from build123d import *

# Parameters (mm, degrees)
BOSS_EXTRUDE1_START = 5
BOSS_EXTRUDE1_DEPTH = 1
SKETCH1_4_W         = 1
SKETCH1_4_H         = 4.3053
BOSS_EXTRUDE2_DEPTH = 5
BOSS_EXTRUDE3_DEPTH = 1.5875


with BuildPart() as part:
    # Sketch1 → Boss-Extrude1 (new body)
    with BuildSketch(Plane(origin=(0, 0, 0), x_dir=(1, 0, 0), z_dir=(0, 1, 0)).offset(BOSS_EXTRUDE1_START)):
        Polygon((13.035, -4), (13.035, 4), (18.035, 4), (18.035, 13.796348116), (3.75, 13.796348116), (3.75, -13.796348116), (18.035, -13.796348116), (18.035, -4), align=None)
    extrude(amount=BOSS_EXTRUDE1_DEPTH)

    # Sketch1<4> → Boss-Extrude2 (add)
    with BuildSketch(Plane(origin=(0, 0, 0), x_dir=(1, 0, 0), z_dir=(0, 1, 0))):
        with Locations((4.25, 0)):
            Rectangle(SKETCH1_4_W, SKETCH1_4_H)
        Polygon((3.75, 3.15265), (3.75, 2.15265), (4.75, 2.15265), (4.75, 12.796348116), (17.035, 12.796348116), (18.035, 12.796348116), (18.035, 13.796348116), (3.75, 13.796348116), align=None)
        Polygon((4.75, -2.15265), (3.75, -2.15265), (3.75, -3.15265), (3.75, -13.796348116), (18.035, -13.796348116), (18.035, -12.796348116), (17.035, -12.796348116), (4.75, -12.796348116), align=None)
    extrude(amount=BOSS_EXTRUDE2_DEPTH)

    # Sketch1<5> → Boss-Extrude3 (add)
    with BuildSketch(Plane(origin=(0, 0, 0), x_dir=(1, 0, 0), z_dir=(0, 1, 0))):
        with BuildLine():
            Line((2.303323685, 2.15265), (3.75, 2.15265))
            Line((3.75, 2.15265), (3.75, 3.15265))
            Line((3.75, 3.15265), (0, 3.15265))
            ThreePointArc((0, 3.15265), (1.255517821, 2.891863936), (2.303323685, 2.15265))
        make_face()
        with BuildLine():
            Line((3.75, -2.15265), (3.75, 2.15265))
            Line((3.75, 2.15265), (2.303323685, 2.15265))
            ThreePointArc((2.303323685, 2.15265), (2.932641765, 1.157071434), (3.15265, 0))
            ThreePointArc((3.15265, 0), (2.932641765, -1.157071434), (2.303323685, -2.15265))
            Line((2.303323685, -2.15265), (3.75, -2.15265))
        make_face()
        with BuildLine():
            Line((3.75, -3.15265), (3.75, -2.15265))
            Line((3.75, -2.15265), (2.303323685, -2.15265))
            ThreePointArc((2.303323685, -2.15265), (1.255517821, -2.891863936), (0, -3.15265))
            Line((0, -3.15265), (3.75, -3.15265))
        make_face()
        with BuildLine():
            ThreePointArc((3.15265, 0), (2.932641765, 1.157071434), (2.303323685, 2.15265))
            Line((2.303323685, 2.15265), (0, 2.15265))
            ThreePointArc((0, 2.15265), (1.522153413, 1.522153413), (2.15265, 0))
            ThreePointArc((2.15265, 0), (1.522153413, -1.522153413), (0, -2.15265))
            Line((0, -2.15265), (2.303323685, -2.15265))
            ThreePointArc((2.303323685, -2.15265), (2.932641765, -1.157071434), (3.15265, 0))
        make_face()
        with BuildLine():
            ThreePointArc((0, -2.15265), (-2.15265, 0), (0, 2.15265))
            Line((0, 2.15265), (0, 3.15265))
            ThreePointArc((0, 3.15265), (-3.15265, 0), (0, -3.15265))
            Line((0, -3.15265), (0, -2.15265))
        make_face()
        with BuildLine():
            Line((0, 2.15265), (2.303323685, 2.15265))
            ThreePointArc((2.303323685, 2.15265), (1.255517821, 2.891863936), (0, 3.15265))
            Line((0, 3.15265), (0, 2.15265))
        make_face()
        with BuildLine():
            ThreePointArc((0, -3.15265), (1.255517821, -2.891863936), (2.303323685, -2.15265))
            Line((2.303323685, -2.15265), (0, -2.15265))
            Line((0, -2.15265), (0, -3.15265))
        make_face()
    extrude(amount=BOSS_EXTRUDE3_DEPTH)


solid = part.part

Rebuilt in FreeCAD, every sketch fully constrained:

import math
import FreeCAD as App
import Part
import Sketcher


def add_polygon(sketch, points):
    """Adds a closed chain of lines whose ends are joined by coincident constraints."""
    first, n = sketch.GeometryCount, len(points)
    for a, b in zip(points, points[1:] + points[:1]):
        sketch.addGeometry(Part.LineSegment(App.Vector(*a, 0), App.Vector(*b, 0)), False)
    for i in range(n):
        sketch.addConstraint(Sketcher.Constraint("Coincident", first + i, 2, first + (i + 1) % n, 1))

doc = App.newDocument("Part")
body = doc.addObject("PartDesign::Body", "Body")

# Sketch on XZ plane
sketch1 = body.newObject("Sketcher::SketchObject", "Sketch")
sketch1.AttachmentSupport = (doc.getObject("XZ_Plane"), [""])
sketch1.MapMode = "FlatFace"
sketch1.AttachmentOffset = App.Placement(App.Vector(0, 0, -5), App.Rotation())
add_polygon(sketch1, [(13, 4), (13, -4), (18, -4), (18, -14), (4, -14), (4, 14), (18, 14), (18, 4)])  # lines 0-7
sketch1.addConstraint([
    Sketcher.Constraint("Vertical", 0),
    Sketcher.Constraint("Horizontal", 1),
    Sketcher.Constraint("Vertical", 2),
    Sketcher.Constraint("Horizontal", 3),
    Sketcher.Constraint("Vertical", 4),
    Sketcher.Constraint("Horizontal", 5),
    Sketcher.Constraint("Vertical", 6),
    Sketcher.Constraint("Horizontal", 7),
    Sketcher.Constraint("Symmetric", 2, 2, 5, 2, -1),
    Sketcher.Constraint("Equal", 2, 6),
    Sketcher.Constraint("DistanceX", 1, 1, 1, 2, 5.0),
    Sketcher.Constraint("DistanceY", 0, 2, 0, 1, 8.0),
    Sketcher.Constraint("DistanceX", 3, 2, 3, 1, 14.285),
    Sketcher.Constraint("DistanceX", -1, 1, 3, 2, 3.75),
    Sketcher.Constraint("DistanceY", 2, 2, 2, 1, 9.796348),
])
pad1 = body.newObject("PartDesign::Pad", "Pad")
pad1.Profile = sketch1
pad1.Length = 1
pad1.Reversed = True

# Sketch on XZ plane
sketch2 = body.newObject("Sketcher::SketchObject", "Sketch001")
sketch2.AttachmentSupport = (doc.getObject("XZ_Plane"), [""])
sketch2.MapMode = "FlatFace"
add_polygon(sketch2, [(4.8, -12.8), (18, -12.8), (18, -13.8), (3.8, -13.8), (3.8, 13.8), (18, 13.8), (18, 12.8), (4.8, 12.8)])  # lines 0-7
sketch2.addConstraint([
    Sketcher.Constraint("Horizontal", 0),
    Sketcher.Constraint("Vertical", 1),
    Sketcher.Constraint("Horizontal", 2),
    Sketcher.Constraint("Vertical", 3),
    Sketcher.Constraint("Horizontal", 4),
    Sketcher.Constraint("Vertical", 5),
    Sketcher.Constraint("Horizontal", 6),
    Sketcher.Constraint("Vertical", 7),
    Sketcher.Constraint("Symmetric", 1, 2, 4, 2, -1),
    Sketcher.Constraint("Equal", 1, 5),
    Sketcher.Constraint("DistanceY", 1, 2, 1, 1, 1.0),
    Sketcher.Constraint("DistanceX", 3, 2, 6, 2, 1.0),
    Sketcher.Constraint("DistanceX", 0, 1, 0, 2, 13.285),
    Sketcher.Constraint("DistanceX", -1, 1, 2, 2, 3.75),
    Sketcher.Constraint("DistanceY", 3, 1, 3, 2, 27.592696),
])
pad2 = body.newObject("PartDesign::Pad", "Pad001")
pad2.Profile = sketch2
pad2.Length = 5
pad2.Reversed = True

# Sketch on XZ plane
sketch3 = body.newObject("Sketcher::SketchObject", "Sketch002")
sketch3.AttachmentSupport = (doc.getObject("XZ_Plane"), [""])
sketch3.MapMode = "FlatFace"
sketch3.addGeometry([
    Part.ArcOfCircle(Part.Circle(App.Vector(0, 0, 0), App.Vector(0, 0, 1), 3.2), math.radians(90), math.radians(270)),  # 0
    Part.LineSegment(App.Vector(0, 3.2, 0), App.Vector(3.8, 3.2, 0)),  # 1
    Part.LineSegment(App.Vector(3.8, 3.2, 0), App.Vector(3.8, -3.2, 0)),  # 2
    Part.LineSegment(App.Vector(3.8, -3.2, 0), App.Vector(0, -3.2, 0)),  # 3
    Part.ArcOfCircle(Part.Circle(App.Vector(0, 0, 0), App.Vector(0, 0, 1), 2.2), math.radians(0), math.radians(90)),  # 4
    Part.ArcOfCircle(Part.Circle(App.Vector(0, 0, 0), App.Vector(0, 0, 1), 2.2), math.radians(90), math.radians(270)),  # 5
    Part.ArcOfCircle(Part.Circle(App.Vector(0, 0, 0), App.Vector(0, 0, 1), 2.2), math.radians(-90), math.radians(0)),  # 6
], False)
sketch3.addConstraint([
    Sketcher.Constraint("Tangent", 0, 1, 1, 1),
    Sketcher.Constraint("Coincident", 1, 2, 2, 1),
    Sketcher.Constraint("Coincident", 2, 2, 3, 1),
    Sketcher.Constraint("Tangent", 3, 2, 0, 2),
    Sketcher.Constraint("Tangent", 4, 2, 5, 1),
    Sketcher.Constraint("Tangent", 5, 2, 6, 1),
    Sketcher.Constraint("Tangent", 6, 2, 4, 1),
    Sketcher.Constraint("Horizontal", 1),
    Sketcher.Constraint("Vertical", 2),
    Sketcher.Constraint("Horizontal", 3),
    Sketcher.Constraint("Coincident", 0, 3, -1, 1),
    Sketcher.Constraint("Coincident", 4, 3, -1, 1),
    Sketcher.Constraint("PointOnObject", 4, 2, -2),
    Sketcher.Constraint("PointOnObject", 5, 2, -2),
    Sketcher.Constraint("PointOnObject", 6, 2, -1),
    Sketcher.Constraint("DistanceY", 4, 2, 0, 1, 1.0),
    Sketcher.Constraint("DistanceX", 1, 1, 1, 2, 3.75),
    Sketcher.Constraint("Radius", 0, 3.15265),
])
pad3 = body.newObject("PartDesign::Pad", "Pad002")
pad3.Profile = sketch3
pad3.Length = 1.5875
pad3.Reversed = True

doc.recompute()
